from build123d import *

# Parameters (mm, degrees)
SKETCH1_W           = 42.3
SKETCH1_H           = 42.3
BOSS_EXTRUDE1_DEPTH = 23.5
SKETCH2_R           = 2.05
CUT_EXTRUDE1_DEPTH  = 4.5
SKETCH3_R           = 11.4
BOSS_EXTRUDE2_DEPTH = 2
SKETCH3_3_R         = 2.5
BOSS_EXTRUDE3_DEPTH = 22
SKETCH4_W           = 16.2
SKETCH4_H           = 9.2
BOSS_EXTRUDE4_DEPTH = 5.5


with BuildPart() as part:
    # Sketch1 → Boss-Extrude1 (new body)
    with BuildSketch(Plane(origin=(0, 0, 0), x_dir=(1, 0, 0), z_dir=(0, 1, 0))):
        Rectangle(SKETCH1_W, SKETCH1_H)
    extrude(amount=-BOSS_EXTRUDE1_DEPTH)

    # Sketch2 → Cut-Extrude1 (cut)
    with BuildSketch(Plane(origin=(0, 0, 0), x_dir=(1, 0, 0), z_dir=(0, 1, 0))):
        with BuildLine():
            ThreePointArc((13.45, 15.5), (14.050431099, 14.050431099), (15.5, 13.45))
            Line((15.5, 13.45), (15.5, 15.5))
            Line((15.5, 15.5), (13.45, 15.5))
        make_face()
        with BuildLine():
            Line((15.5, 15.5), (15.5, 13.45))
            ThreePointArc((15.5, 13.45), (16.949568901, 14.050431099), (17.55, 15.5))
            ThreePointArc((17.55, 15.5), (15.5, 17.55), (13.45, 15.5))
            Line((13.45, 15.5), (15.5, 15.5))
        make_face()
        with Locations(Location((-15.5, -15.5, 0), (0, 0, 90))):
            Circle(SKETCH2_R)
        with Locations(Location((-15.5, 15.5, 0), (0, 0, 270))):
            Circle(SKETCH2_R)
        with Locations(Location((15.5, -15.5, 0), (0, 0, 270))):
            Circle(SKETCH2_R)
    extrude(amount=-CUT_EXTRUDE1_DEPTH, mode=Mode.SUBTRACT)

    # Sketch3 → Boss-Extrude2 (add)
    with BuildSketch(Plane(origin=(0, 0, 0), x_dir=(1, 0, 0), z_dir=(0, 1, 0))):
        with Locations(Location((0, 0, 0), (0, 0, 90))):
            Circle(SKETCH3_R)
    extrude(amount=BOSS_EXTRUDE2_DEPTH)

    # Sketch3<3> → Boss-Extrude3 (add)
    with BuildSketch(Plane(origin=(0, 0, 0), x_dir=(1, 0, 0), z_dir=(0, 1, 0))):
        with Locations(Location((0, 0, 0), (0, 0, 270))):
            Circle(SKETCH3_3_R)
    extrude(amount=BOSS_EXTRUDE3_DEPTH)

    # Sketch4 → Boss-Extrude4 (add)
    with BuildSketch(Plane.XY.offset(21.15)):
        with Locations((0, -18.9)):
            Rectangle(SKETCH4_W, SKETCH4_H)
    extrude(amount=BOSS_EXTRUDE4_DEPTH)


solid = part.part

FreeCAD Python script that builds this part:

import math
import FreeCAD as App
import Part
import Sketcher
from FreeCAD import Vector
Q = App.Units.Quantity


def add_polygon(sketch, points):
    """Adds a closed chain of lines whose ends are joined by coincident constraints."""
    first, n = sketch.GeometryCount, len(points)
    for a, b in zip(points, points[1:] + points[:1]):
        sketch.addGeometry(Part.LineSegment(App.Vector(*a, 0), App.Vector(*b, 0)), False)
    for i in range(n):
        sketch.addConstraint(Sketcher.Constraint("Coincident", first + i, 2, first + (i + 1) % n, 1))

doc = App.newDocument("Part")
body = doc.addObject("PartDesign::Body", "Body")

sketch1 = body.newObject("Sketcher::SketchObject", "Sketch")
sketch1.AttachmentSupport = (doc.getObject("XZ_Plane"), [""])
sketch1.MapMode = "FlatFace"
add_polygon(sketch1, [(-21, -21), (-21, 21), (21, 21), (21, -21)])
sketch1.addConstraint([
    Sketcher.Constraint("Vertical", 0),
    Sketcher.Constraint("Horizontal", 1),
    Sketcher.Constraint("Vertical", 2),
    Sketcher.Constraint("Horizontal", 3),
    Sketcher.Constraint("Symmetric", 0, 2, 2, 2, -1, 1),
    Sketcher.Constraint("Equal", 3, 0),
    Sketcher.Constraint("DistanceX", 1, 1, 1, 2, Q("42.3 mm")),
])
pad1 = body.newObject("PartDesign::Pad", "Pad")
pad1.Profile = sketch1
pad1.Length = 23.5

sketch2 = body.newObject("Sketcher::SketchObject", "Sketch001")
sketch2.AttachmentSupport = (doc.getObject("XZ_Plane"), [""])
sketch2.MapMode = "FlatFace"
sketch2.addGeometry([
    Part.ArcOfCircle(Part.Circle(Vector(15.5, -15.5, 0), Vector(0, 0, 1), 2.1), math.radians(90), math.radians(180)),
    Part.ArcOfCircle(Part.Circle(Vector(15.5, -15.5, 0), Vector(0, 0, 1), 2.1), math.radians(0), math.radians(90)),
    Part.ArcOfCircle(Part.Circle(Vector(15.5, -15.5, 0), Vector(0, 0, 1), 2), math.radians(180), math.radians(360)),
    Part.Circle(Vector(-15.5, 15.5, 0), Vector(0, 0, 1), 2),
    Part.Circle(Vector(-15.5, -15.5, 0), Vector(0, 0, 1), 2),
    Part.Circle(Vector(15.5, 15.5, 0), Vector(0, 0, 1), 2),
], False)
sketch2.addConstraint([
    Sketcher.Constraint("Tangent", 0, 1, 1, 2),
    Sketcher.Constraint("Tangent", 1, 1, 2, 2),
    Sketcher.Constraint("Tangent", 2, 1, 0, 2),
    Sketcher.Constraint("Equal", 2, 3),
    Sketcher.Constraint("Equal", 3, 4),
    Sketcher.Constraint("Equal", 4, 5),
    Sketcher.Constraint("Symmetric", 0, 3, 3, 3, -1, 1),
    Sketcher.Constraint("Symmetric", 4, 3, 5, 3, -1, 1),
    Sketcher.Constraint("Symmetric", 0, 3, 4, 3, -2),
    Sketcher.Constraint("Horizontal", 4, 3, 1, 1),
    Sketcher.Constraint("Horizontal", 1, 1, 2, 1),
    Sketcher.Constraint("Vertical", 5, 3, 0, 1),
    Sketcher.Constraint("Diameter", 3, Q("4.1 mm")),
    Sketcher.Constraint("DistanceX", 3, 3, 1, 3, Q("31 mm")),
    Sketcher.Constraint("DistanceY", 1, 3, 3, 3, Q("31 mm")),
])
pocket1 = body.newObject("PartDesign::Pocket", "Pocket")
pocket1.Profile = sketch2
pocket1.Length = 4.5
pocket1.Reversed = True

sketch3 = body.newObject("Sketcher::SketchObject", "Sketch002")
sketch3.AttachmentSupport = (doc.getObject("XZ_Plane"), [""])
sketch3.MapMode = "FlatFace"
sketch3.addGeometry(Part.Circle(Vector(0, 0, 0), Vector(0, 0, 1), 11), False)
sketch3.addConstraint([
    Sketcher.Constraint("Coincident", 0, 3, -1, 1),
    Sketcher.Constraint("Diameter", 0, Q("22.8 mm")),
])
pad2 = body.newObject("PartDesign::Pad", "Pad001")
pad2.Profile = sketch3
pad2.Length = 2
pad2.Reversed = True

sketch4 = body.newObject("Sketcher::SketchObject", "Sketch003")
sketch4.AttachmentSupport = (doc.getObject("XZ_Plane"), [""])
sketch4.MapMode = "FlatFace"
sketch4.addGeometry(Part.Circle(Vector(0, 0, 0), Vector(0, 0, 1), 2.5), False)
sketch4.addConstraint([
    Sketcher.Constraint("Coincident", 0, 3, -1, 1),
    Sketcher.Constraint("Diameter", 0, Q("5 mm")),
])
pad3 = body.newObject("PartDesign::Pad", "Pad002")
pad3.Profile = sketch4
pad3.Length = 22
pad3.Reversed = True

sketch5 = body.newObject("Sketcher::SketchObject", "Sketch004")
sketch5.AttachmentSupport = (doc.getObject("XY_Plane"), [""])
sketch5.MapMode = "FlatFace"
sketch5.AttachmentOffset = App.Placement(Vector(0, 0, 21.15), App.Rotation())
add_polygon(sketch5, [(-8, -14), (-8, -24), (8, -24), (8, -14)])
sketch5.addConstraint([
    Sketcher.Constraint("Vertical", 0),
    Sketcher.Constraint("Horizontal", 1),
    Sketcher.Constraint("Vertical", 2),
    Sketcher.Constraint("Horizontal", 3),
    Sketcher.Constraint("DistanceX", 1, 1, 1, 2, Q("16.2 mm")),
    Sketcher.Constraint("DistanceY", 0, 2, 0, 1, Q("9.2 mm")),
    Sketcher.Constraint("DistanceX", 0, 2, -1, 1, Q("8.1 mm")),
    Sketcher.Constraint("DistanceY", 0, 2, -1, 1, Q("23.5 mm")),
])
pad4 = body.newObject("PartDesign::Pad", "Pad003")
pad4.Profile = sketch5
pad4.Length = 5.5

doc.recompute()
